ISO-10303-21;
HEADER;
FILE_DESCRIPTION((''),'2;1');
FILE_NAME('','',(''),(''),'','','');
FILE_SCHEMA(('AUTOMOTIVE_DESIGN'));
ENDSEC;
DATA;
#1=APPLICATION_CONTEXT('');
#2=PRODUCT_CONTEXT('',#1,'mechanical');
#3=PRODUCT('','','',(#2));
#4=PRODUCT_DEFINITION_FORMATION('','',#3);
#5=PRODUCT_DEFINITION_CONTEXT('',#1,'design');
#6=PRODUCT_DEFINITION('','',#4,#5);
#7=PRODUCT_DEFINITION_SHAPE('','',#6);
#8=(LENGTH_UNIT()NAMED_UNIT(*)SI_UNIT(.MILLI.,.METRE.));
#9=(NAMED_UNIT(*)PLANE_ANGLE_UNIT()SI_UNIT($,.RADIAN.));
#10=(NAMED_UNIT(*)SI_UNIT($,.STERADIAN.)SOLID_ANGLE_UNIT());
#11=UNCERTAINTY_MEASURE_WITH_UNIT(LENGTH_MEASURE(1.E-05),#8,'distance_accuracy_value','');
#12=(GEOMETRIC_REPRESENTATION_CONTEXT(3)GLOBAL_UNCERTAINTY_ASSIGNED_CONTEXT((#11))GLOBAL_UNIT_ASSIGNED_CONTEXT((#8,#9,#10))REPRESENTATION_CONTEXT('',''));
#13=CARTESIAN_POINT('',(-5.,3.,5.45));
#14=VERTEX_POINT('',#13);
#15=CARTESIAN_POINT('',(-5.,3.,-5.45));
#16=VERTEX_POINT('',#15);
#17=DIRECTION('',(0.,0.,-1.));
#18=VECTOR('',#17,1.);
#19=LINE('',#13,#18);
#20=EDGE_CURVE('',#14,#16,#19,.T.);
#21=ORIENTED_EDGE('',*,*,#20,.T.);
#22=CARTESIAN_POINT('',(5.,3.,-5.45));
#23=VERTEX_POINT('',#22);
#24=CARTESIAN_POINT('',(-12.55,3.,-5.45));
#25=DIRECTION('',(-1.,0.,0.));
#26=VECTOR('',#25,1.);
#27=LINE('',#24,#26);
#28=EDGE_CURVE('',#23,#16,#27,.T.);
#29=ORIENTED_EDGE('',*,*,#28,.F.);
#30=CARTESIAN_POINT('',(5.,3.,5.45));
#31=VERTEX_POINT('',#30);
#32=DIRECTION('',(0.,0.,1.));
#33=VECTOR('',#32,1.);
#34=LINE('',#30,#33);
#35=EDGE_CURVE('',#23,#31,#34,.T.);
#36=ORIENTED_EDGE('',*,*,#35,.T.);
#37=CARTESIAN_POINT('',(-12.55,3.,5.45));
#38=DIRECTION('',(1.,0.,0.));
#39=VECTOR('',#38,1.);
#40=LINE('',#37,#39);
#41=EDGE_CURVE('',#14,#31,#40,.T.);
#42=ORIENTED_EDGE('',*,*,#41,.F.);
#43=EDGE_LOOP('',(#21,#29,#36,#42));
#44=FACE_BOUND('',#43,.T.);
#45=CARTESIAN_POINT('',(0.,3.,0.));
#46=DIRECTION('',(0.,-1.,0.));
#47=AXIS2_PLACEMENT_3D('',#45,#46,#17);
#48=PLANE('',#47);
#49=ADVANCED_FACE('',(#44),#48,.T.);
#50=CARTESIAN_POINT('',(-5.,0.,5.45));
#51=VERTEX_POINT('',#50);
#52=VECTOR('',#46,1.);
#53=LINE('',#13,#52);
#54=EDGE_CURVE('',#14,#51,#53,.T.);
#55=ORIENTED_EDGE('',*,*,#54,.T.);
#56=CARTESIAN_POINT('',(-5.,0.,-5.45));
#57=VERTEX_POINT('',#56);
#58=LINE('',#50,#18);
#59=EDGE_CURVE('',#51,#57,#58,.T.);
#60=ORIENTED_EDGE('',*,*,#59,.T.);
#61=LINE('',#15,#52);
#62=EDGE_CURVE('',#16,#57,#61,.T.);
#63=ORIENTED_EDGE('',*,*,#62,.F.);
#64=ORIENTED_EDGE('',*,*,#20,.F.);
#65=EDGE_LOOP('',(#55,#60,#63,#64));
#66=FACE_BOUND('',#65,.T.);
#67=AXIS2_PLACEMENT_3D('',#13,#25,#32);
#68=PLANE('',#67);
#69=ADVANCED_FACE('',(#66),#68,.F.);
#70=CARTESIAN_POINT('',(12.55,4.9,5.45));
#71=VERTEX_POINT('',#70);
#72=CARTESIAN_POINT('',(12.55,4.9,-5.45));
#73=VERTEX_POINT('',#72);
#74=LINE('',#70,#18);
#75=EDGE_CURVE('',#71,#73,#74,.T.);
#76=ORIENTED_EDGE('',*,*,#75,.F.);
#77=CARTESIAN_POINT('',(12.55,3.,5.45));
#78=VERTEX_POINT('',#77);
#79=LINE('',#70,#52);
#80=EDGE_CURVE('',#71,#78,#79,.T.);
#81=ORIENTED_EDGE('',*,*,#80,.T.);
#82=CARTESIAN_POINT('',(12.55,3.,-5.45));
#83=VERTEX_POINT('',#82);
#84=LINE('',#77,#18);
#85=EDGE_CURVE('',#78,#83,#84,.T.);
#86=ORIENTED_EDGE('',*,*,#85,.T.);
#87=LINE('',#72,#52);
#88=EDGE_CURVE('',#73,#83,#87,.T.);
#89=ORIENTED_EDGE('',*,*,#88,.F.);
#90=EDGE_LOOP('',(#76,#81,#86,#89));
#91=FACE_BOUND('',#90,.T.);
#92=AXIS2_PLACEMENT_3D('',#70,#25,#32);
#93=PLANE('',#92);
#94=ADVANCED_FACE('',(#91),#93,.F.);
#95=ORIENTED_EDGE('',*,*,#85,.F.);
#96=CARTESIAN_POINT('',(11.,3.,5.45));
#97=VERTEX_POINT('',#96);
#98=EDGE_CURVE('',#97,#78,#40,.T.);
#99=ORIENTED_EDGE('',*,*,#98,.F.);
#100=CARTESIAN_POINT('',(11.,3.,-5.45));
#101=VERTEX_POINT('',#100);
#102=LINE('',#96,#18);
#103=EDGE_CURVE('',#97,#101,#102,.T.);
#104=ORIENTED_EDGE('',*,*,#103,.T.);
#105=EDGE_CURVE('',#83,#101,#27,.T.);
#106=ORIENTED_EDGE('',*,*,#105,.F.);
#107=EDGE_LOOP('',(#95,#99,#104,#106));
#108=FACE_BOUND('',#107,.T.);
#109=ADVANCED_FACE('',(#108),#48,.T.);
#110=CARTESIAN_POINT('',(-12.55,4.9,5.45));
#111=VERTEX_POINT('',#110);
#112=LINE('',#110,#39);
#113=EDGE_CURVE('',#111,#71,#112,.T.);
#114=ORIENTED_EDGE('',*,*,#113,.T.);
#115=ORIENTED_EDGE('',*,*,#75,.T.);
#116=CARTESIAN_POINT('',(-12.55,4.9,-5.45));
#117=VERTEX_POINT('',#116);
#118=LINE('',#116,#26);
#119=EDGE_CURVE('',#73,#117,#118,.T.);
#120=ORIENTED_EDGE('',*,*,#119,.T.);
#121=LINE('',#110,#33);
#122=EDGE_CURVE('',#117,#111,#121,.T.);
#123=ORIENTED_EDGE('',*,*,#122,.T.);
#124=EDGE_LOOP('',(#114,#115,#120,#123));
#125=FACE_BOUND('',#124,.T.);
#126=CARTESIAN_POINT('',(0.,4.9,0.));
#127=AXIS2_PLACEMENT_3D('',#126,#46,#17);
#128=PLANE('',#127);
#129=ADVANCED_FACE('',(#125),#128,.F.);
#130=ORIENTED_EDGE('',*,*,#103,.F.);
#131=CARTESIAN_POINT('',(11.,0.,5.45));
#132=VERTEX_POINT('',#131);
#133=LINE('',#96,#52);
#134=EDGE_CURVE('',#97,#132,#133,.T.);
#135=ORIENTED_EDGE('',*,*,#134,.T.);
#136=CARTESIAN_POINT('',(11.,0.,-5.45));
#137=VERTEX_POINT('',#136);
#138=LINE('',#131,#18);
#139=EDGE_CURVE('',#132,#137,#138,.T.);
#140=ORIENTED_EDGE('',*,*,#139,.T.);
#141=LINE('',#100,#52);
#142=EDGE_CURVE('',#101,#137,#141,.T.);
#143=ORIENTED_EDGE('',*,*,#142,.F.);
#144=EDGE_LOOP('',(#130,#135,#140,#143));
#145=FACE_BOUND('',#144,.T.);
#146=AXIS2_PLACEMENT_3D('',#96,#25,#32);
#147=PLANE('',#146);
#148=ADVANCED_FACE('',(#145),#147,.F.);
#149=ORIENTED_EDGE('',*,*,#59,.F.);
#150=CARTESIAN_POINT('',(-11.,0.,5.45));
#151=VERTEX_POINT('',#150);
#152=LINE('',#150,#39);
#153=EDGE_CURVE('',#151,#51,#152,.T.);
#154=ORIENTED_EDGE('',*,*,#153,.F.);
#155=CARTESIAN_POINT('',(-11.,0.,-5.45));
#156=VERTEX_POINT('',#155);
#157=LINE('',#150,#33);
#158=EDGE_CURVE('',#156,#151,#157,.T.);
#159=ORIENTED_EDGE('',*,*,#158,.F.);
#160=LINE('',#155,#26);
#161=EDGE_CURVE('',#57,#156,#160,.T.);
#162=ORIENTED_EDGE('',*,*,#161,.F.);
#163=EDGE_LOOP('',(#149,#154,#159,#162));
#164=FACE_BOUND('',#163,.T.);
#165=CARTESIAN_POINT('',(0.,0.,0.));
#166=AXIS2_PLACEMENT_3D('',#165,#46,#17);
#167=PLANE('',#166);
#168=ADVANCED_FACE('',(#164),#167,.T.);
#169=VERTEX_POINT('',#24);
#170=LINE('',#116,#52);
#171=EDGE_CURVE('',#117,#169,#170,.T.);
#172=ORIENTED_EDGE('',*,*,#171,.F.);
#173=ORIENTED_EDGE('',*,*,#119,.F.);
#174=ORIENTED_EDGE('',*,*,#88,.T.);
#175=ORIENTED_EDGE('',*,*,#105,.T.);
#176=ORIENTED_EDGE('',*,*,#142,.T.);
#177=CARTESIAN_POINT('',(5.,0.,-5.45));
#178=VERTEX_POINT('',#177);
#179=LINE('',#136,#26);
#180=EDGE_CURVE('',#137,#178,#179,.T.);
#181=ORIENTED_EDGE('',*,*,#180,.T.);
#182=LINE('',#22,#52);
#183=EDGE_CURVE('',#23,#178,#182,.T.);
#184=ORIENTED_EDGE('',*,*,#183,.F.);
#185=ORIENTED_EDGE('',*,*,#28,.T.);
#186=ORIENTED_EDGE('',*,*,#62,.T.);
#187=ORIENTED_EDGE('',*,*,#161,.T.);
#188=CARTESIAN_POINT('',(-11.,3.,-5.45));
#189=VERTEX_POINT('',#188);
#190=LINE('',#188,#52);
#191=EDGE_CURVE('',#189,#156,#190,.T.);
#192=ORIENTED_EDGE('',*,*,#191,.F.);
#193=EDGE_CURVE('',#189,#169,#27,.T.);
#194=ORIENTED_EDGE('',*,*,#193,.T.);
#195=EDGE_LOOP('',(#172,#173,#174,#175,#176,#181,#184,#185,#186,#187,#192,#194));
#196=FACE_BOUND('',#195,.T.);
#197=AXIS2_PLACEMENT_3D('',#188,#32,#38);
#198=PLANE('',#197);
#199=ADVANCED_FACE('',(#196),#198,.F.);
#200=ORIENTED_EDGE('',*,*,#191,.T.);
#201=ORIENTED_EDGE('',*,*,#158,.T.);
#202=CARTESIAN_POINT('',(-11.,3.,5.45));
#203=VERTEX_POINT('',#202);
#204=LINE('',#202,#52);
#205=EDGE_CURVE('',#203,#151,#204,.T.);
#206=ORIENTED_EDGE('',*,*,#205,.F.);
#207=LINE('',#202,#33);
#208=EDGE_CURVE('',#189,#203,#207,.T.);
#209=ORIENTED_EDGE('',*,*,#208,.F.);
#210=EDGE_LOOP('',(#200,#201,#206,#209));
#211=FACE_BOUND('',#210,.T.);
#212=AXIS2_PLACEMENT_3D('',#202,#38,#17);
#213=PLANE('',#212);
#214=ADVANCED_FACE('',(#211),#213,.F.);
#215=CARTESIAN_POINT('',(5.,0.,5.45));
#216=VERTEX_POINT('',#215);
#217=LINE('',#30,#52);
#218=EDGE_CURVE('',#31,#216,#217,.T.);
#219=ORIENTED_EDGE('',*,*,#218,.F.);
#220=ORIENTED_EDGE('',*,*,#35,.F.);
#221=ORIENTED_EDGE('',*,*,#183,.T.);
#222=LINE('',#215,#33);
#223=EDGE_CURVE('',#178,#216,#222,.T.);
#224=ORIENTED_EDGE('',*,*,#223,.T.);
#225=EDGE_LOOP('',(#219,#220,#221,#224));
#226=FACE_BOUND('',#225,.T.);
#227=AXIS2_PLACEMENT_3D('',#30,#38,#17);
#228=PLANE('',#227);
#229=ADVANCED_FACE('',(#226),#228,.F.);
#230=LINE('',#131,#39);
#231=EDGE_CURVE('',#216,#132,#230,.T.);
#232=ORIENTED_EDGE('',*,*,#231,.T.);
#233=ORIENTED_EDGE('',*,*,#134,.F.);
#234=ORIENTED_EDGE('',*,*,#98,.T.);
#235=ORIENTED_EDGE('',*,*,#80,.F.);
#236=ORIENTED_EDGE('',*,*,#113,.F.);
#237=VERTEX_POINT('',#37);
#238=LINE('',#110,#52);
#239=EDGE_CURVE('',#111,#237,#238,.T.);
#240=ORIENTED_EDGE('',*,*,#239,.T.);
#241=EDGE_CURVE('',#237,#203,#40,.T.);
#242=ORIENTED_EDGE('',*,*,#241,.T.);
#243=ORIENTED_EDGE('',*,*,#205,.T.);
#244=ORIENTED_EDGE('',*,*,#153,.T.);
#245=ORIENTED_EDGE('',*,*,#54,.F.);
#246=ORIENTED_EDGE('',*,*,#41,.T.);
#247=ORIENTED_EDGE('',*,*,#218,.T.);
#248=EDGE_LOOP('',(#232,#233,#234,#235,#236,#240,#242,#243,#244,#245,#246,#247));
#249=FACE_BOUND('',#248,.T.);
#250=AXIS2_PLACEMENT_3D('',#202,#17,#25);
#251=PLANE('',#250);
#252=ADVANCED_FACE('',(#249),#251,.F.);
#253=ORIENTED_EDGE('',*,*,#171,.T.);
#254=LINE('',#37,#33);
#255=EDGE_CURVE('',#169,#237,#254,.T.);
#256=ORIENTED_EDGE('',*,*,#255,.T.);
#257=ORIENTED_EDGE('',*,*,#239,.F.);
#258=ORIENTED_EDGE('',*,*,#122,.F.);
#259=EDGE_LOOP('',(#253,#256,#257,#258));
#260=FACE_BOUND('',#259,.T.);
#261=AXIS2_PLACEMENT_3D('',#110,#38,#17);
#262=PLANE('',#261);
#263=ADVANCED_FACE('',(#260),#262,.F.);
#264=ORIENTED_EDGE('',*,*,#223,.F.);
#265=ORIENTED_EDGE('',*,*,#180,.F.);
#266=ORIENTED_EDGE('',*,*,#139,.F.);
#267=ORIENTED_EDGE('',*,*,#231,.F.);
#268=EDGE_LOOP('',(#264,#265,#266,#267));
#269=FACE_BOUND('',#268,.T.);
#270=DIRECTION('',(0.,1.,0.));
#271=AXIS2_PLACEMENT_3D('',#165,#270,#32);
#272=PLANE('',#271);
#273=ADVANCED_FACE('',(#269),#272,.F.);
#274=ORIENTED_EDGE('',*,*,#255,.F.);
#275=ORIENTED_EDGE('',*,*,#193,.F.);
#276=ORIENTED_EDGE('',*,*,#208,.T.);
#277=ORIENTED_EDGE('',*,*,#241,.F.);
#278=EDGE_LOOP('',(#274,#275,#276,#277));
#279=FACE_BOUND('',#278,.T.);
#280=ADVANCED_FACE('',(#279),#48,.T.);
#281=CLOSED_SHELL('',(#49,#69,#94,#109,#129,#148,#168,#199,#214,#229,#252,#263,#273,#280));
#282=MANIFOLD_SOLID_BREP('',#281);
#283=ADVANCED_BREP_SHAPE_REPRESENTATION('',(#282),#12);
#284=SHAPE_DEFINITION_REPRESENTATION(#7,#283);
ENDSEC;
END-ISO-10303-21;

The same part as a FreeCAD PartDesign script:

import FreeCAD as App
import Part
import Sketcher

doc = App.newDocument("Part")
body = doc.addObject("PartDesign::Body", "Body")

sketch1 = doc.addObject("Sketcher::SketchObject", "Sketch")
body.addObject(sketch1)
sketch1.AttachmentSupport = (doc.XZ_Plane, [""])
sketch1.MapMode = "FlatFace"
sketch1.addGeometry([
    Part.LineSegment(App.Vector(-11, -5, 0), App.Vector(-11, 5, 0)),
    Part.LineSegment(App.Vector(-11, 5, 0), App.Vector(-5, 5, 0)),
    Part.LineSegment(App.Vector(-5, 5, 0), App.Vector(-5, -5, 0)),
    Part.LineSegment(App.Vector(-5, -5, 0), App.Vector(-11, -5, 0)),
], False)
sketch1.addConstraint([
    Sketcher.Constraint("Coincident", 0, 2, 1, 1),
    Sketcher.Constraint("Coincident", 1, 2, 2, 1),
    Sketcher.Constraint("Coincident", 2, 2, 3, 1),
    Sketcher.Constraint("Coincident", 3, 2, 0, 1),
    Sketcher.Constraint("Vertical", 0),
    Sketcher.Constraint("Horizontal", 1),
    Sketcher.Constraint("Vertical", 2),
    Sketcher.Constraint("Horizontal", 3),
    Sketcher.Constraint("DistanceX", 1, 1, 1, 2, 6.0),
    Sketcher.Constraint("DistanceY", 0, 1, 0, 2, 10.9),
    Sketcher.Constraint("DistanceX", 0, 2, -1, 1, 11.0),
    Sketcher.Constraint("DistanceY", -1, 1, 0, 2, 5.45),
])
pad1 = doc.addObject("PartDesign::Pad", "Pad")
body.addObject(pad1)
pad1.Profile = sketch1
pad1.Length = 3
pad1.Reversed = True
body2 = doc.addObject("PartDesign::Body", "Body001")

sketch2 = doc.addObject("Sketcher::SketchObject", "Sketch001")
body2.addObject(sketch2)
sketch2.AttachmentSupport = (doc.getObject("XZ_Plane001"), [""])
sketch2.MapMode = "FlatFace"
sketch2.addGeometry([
    Part.LineSegment(App.Vector(5, -5, 0), App.Vector(5, 5, 0)),
    Part.LineSegment(App.Vector(5, 5, 0), App.Vector(11, 5, 0)),
    Part.LineSegment(App.Vector(11, 5, 0), App.Vector(11, -5, 0)),
    Part.LineSegment(App.Vector(11, -5, 0), App.Vector(5, -5, 0)),
], False)
sketch2.addConstraint([
    Sketcher.Constraint("Coincident", 0, 2, 1, 1),
    Sketcher.Constraint("Coincident", 1, 2, 2, 1),
    Sketcher.Constraint("Coincident", 2, 2, 3, 1),
    Sketcher.Constraint("Coincident", 3, 2, 0, 1),
    Sketcher.Constraint("Vertical", 0),
    Sketcher.Constraint("Horizontal", 1),
    Sketcher.Constraint("Vertical", 2),
    Sketcher.Constraint("Horizontal", 3),
    Sketcher.Constraint("DistanceX", 1, 1, 1, 2, 6.0),
    Sketcher.Constraint("DistanceY", 0, 1, 0, 2, 10.9),
    Sketcher.Constraint("DistanceX", -1, 1, 0, 2, 5.0),
    Sketcher.Constraint("DistanceY", -1, 1, 0, 2, 5.45),
])
pad2 = doc.addObject("PartDesign::Pad", "Pad001")
body2.addObject(pad2)
pad2.Profile = sketch2
pad2.Length = 3
pad2.Reversed = True
body.AllowCompound = True
doc.recompute()

boolean = doc.addObject("PartDesign::Boolean", "Boolean")
body.addObject(boolean)
boolean.Type = "Fuse"
boolean.addObjects([body2])

sketch3 = doc.addObject("Sketcher::SketchObject", "Sketch002")
body.addObject(sketch3)
sketch3.AttachmentSupport = (doc.XZ_Plane, [""])
sketch3.MapMode = "FlatFace"
sketch3.AttachmentOffset = App.Placement(App.Vector(0, 0, -3), App.Rotation())
sketch3.addGeometry([
    Part.LineSegment(App.Vector(-13, -5, 0), App.Vector(-13, 5, 0)),
    Part.LineSegment(App.Vector(-13, 5, 0), App.Vector(13, 5, 0)),
    Part.LineSegment(App.Vector(13, 5, 0), App.Vector(13, -5, 0)),
    Part.LineSegment(App.Vector(13, -5, 0), App.Vector(-13, -5, 0)),
], False)
sketch3.addConstraint([
    Sketcher.Constraint("Coincident", 0, 2, 1, 1),
    Sketcher.Constraint("Coincident", 1, 2, 2, 1),
    Sketcher.Constraint("Coincident", 2, 2, 3, 1),
    Sketcher.Constraint("Coincident", 3, 2, 0, 1),
    Sketcher.Constraint("Vertical", 0),
    Sketcher.Constraint("Horizontal", 1),
    Sketcher.Constraint("Vertical", 2),
    Sketcher.Constraint("Horizontal", 3),
    Sketcher.Constraint("Symmetric", 0, 2, 2, 2, -1, 1),
    Sketcher.Constraint("DistanceX", 1, 1, 1, 2, 25.1),
    Sketcher.Constraint("DistanceY", 0, 1, 0, 2, 10.9),
])
pad3 = doc.addObject("PartDesign::Pad", "Pad002")
body.addObject(pad3)
pad3.Profile = sketch3
pad3.Length = 1.9
pad3.Reversed = True

doc.recompute()
